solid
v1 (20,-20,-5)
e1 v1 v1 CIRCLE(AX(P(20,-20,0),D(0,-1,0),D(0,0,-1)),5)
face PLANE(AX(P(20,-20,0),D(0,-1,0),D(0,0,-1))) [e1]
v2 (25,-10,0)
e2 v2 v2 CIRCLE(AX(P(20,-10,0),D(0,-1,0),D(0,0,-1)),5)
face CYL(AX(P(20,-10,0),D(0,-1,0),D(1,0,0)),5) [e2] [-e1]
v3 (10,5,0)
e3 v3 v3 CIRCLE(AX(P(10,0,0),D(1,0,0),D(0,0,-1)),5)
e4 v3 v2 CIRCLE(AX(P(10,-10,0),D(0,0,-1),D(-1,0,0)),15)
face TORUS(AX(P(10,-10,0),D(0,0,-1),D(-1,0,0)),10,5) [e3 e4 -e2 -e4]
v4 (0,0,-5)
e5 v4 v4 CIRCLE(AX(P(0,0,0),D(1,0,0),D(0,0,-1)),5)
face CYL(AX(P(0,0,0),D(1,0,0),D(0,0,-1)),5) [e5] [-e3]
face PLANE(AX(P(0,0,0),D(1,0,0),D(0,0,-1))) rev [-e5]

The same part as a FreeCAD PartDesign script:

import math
import FreeCAD as App
import Part
import Sketcher
from FreeCAD import Vector
Q = App.Units.Quantity

doc = App.newDocument("Part")
body = doc.addObject("PartDesign::Body", "Body")

sketch1 = body.newObject("Sketcher::SketchObject", "Sketch")
sketch1.AttachmentSupport = (doc.getObject("YZ_Plane"), [""])
sketch1.MapMode = "FlatFace"
sketch1.addGeometry(Part.Circle(Vector(0, 0, 0), Vector(0, 0, 1), 5), False)
sketch1.addConstraint([
    Sketcher.Constraint("Coincident", 0, 3, -1, 1),
    Sketcher.Constraint("Diameter", 0, Q("10 mm")),
])

sketch2 = body.newObject("Sketcher::SketchObject", "Sketch001")
sketch2.AttachmentSupport = (doc.getObject("XY_Plane"), [""])
sketch2.MapMode = "FlatFace"
sketch2.addGeometry([
    Part.LineSegment(Vector(0, 0, 0), Vector(10, 0, 0)),
    Part.ArcOfCircle(Part.Circle(Vector(10, -10, 0), Vector(0, 0, 1), 10), math.radians(0), math.radians(90)),
    Part.LineSegment(Vector(20, -10, 0), Vector(20, -20, 0)),
], False)
sketch2.addConstraint([
    Sketcher.Constraint("Tangent", 0, 2, 1, 2),
    Sketcher.Constraint("Tangent", 1, 1, 2, 1),
    Sketcher.Constraint("Horizontal", 0),
    Sketcher.Constraint("Vertical", 2),
    Sketcher.Constraint("Coincident", 0, 1, -1, 1),
    Sketcher.Constraint("Equal", 0, 2),
    Sketcher.Constraint("Radius", 1, Q("10 mm")),
    Sketcher.Constraint("DistanceX", 0, 1, 0, 2, Q("10 mm")),
])
doc.recompute()

additivepipe = body.newObject("PartDesign::AdditivePipe", "AdditivePipe")
additivepipe.Profile = sketch1
additivepipe.Spine = (sketch2, ["Edge1", "Edge2", "Edge3"])

doc.recompute()
